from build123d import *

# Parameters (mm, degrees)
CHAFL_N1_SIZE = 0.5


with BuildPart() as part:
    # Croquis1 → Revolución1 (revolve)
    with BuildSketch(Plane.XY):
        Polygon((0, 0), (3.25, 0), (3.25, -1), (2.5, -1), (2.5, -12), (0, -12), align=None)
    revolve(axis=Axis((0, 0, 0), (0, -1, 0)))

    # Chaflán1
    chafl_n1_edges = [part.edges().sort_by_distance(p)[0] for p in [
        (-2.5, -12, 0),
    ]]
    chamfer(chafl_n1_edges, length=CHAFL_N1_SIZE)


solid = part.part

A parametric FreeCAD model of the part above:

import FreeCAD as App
import Part
import Sketcher


def edges_at(feature, points):
    """Names of the edges that pass closest to the given points."""
    edges = feature.Shape.Edges
    near = lambda p: min(range(len(edges)), key=lambda i: edges[i].distToShape(Part.Vertex(*p))[0])
    return sorted({f"Edge{near(p) + 1}" for p in points})


def add_polygon(sketch, points):
    """Adds a closed chain of lines whose ends are joined by coincident constraints."""
    first, n = sketch.GeometryCount, len(points)
    for a, b in zip(points, points[1:] + points[:1]):
        sketch.addGeometry(Part.LineSegment(App.Vector(*a, 0), App.Vector(*b, 0)), False)
    for i in range(n):
        sketch.addConstraint(Sketcher.Constraint("Coincident", first + i, 2, first + (i + 1) % n, 1))

doc = App.newDocument("Part")
params = doc.addObject("Spreadsheet::Sheet", "Params")
for row, (alias, value) in enumerate([
    ("sketch1_height", "12 mm"),
    ("sketch1_height2", "11 mm"),
    ("sketch1_width", "2.5 mm"),
    ("sketch1_width2", "3.25 mm"),
    ("revolution_angle", "360 deg"),
    ("chamfer_size", "0.5 mm"),
], start=1):
    params.set(f"A{row}", alias)
    params.set(f"B{row}", "=" + value)
    params.setAlias(f"B{row}", alias)

body = doc.addObject("PartDesign::Body", "Body")

# Sketch on XY plane
sketch1 = doc.addObject("Sketcher::SketchObject", "Sketch")
body.addObject(sketch1)
sketch1.AttachmentSupport = (doc.XY_Plane, [""])
sketch1.MapMode = "FlatFace"
add_polygon(sketch1, [(3.2, 0), (0, 0), (0, -12), (2.5, -12), (2.5, -1), (3.2, -1)])  # lines 0-5
sketch1.addConstraint([
    Sketcher.Constraint("Horizontal", 0),
    Sketcher.Constraint("Vertical", 1),
    Sketcher.Constraint("Horizontal", 2),
    Sketcher.Constraint("Vertical", 3),
    Sketcher.Constraint("Horizontal", 4),
    Sketcher.Constraint("Vertical", 5),
    Sketcher.Constraint("Coincident", 0, 2, -1, 1),
    Sketcher.Constraint("DistanceY", 1, 2, 1, 1, 12.0),
    Sketcher.Constraint("DistanceY", 3, 1, 3, 2, 11.0),
    Sketcher.Constraint("DistanceX", 2, 1, 2, 2, 2.5),
    Sketcher.Constraint("DistanceX", 0, 2, 0, 1, 3.25),
])
sketch1.setExpression("Constraints[13]", "Params.sketch1_height")
sketch1.setExpression("Constraints[14]", "Params.sketch1_height2")
sketch1.setExpression("Constraints[15]", "Params.sketch1_width")
sketch1.setExpression("Constraints[16]", "Params.sketch1_width2")
revolution = doc.addObject("PartDesign::Revolution", "Revolution")
body.addObject(revolution)
revolution.Profile = sketch1
revolution.ReferenceAxis = (sketch1, ["V_Axis"])
revolution.setExpression("Angle", "Params.revolution_angle")
doc.recompute()

chamfer = doc.addObject("PartDesign::Chamfer", "Chamfer")
body.addObject(chamfer)
chamfer.Base = (revolution, edges_at(revolution, [(-2.5, -12, 0)]))
chamfer.setExpression("Size", "Params.chamfer_size")

doc.recompute()
